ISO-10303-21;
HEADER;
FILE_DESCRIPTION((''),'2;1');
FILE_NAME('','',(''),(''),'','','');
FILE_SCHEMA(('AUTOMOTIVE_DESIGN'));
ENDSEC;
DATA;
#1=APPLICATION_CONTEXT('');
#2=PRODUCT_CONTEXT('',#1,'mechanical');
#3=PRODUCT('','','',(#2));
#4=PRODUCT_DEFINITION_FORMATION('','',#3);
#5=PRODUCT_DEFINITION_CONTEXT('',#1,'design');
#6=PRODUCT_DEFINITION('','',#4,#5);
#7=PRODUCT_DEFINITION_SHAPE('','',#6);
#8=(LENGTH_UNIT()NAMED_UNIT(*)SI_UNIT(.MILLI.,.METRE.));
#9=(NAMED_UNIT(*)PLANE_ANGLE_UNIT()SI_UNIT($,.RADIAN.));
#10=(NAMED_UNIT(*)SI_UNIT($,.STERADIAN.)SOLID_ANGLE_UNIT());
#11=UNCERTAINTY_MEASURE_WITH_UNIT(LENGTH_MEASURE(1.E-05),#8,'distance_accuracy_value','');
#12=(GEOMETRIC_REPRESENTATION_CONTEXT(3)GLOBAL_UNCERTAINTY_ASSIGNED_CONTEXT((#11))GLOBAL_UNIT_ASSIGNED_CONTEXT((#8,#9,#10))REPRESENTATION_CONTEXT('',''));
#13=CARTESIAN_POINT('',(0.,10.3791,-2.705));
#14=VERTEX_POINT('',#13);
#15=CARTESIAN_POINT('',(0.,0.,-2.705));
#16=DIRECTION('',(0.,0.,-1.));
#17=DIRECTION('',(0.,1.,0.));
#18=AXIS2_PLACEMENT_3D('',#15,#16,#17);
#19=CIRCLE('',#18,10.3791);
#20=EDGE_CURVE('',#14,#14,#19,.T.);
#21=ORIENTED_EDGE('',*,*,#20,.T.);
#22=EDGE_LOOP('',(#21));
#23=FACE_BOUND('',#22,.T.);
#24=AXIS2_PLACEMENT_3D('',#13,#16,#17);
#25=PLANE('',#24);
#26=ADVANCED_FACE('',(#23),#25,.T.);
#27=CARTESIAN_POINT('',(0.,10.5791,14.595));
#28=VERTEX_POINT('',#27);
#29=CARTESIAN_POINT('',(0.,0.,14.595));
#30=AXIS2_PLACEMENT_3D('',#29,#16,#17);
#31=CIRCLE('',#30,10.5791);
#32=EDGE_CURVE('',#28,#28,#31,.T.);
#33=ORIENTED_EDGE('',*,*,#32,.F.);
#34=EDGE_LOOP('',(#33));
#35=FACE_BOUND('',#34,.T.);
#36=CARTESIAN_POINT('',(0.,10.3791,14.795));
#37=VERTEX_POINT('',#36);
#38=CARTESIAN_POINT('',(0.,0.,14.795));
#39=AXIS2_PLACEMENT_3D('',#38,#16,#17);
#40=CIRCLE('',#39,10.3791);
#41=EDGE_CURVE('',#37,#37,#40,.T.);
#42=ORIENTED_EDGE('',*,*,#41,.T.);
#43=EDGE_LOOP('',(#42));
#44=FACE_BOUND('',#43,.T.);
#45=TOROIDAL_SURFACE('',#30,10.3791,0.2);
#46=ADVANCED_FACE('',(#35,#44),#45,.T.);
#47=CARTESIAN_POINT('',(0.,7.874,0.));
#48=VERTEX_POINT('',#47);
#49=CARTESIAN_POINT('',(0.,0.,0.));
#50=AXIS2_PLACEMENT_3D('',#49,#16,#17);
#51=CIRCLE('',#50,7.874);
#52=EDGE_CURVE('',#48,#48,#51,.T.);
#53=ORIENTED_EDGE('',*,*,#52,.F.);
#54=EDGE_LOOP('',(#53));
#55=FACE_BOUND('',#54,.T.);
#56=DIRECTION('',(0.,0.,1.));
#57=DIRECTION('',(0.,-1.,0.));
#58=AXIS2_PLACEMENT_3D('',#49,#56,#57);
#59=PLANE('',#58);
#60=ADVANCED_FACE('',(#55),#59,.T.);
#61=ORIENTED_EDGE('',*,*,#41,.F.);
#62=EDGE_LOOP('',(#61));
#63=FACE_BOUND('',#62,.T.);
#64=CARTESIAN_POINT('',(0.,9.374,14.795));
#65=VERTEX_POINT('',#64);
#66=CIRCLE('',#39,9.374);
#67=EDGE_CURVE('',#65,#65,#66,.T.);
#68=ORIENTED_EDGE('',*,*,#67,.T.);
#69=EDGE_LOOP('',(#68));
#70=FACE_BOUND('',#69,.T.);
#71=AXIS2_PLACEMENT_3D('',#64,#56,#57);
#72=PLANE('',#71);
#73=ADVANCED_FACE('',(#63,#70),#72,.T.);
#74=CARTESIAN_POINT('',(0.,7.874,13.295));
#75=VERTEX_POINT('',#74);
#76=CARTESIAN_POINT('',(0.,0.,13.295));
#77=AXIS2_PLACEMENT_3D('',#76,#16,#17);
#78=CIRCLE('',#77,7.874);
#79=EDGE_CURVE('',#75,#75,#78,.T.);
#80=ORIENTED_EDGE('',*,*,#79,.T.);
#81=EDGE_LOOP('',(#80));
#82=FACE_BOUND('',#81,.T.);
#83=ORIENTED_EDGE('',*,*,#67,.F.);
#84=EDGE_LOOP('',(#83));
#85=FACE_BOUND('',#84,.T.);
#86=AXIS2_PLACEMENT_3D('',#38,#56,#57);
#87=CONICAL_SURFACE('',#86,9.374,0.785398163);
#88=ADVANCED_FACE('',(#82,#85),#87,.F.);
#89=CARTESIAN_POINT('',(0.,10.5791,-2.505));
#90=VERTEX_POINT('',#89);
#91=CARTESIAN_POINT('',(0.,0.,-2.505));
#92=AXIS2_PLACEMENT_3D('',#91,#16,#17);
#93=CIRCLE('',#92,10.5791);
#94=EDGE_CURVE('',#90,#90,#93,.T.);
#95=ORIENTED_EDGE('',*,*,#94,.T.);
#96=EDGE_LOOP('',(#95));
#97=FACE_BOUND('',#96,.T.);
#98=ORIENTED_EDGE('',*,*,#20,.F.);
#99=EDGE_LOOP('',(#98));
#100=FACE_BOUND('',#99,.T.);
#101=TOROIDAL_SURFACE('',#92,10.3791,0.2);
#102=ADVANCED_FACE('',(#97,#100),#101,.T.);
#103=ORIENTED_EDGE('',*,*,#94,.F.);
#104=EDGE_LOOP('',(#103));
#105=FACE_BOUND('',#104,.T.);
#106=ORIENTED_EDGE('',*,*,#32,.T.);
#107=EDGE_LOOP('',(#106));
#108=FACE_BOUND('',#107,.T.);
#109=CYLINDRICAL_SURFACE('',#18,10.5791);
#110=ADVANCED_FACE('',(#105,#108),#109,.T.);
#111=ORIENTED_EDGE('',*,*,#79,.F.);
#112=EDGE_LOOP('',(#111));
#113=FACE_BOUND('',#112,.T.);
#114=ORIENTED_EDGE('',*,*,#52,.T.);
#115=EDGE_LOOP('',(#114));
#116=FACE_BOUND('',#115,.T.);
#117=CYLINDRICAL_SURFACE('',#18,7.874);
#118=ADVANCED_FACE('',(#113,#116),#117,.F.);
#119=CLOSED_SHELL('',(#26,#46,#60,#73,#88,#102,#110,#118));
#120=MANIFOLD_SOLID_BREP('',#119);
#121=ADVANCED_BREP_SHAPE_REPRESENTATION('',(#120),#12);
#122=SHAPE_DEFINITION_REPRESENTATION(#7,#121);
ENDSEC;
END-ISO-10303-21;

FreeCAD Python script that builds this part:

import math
import FreeCAD as App
import Part
import Sketcher
Q = App.Units.Quantity

doc = App.newDocument("Part")
body = doc.addObject("PartDesign::Body", "Body")

sketch1 = body.newObject("Sketcher::SketchObject", "Sketch")
sketch1.AttachmentSupport = (doc.getObject("YZ_Plane"), [""])
sketch1.MapMode = "FlatFace"
sketch1.addGeometry([
    Part.LineSegment(App.Vector(10.3791, 14.795, 0), App.Vector(9.374, 14.795, 0)),
    Part.LineSegment(App.Vector(9.374, 14.795, 0), App.Vector(7.874, 13.295, 0)),
    Part.LineSegment(App.Vector(7.874, 13.295, 0), App.Vector(7.874, 0, 0)),
    Part.LineSegment(App.Vector(7.874, 0, 0), App.Vector(0, 0, 0)),
    Part.LineSegment(App.Vector(0, 0, 0), App.Vector(0, -2.705, 0)),
    Part.LineSegment(App.Vector(0, -2.705, 0), App.Vector(10.3791, -2.705, 0)),
    Part.ArcOfCircle(Part.Circle(App.Vector(10.3791, -2.505, 0), App.Vector(0, 0, 1), 0.2), math.radians(-90), math.radians(0)),
    Part.LineSegment(App.Vector(10.5791, -2.505, 0), App.Vector(10.5791, 14.595, 0)),
    Part.ArcOfCircle(Part.Circle(App.Vector(10.3791, 14.595, 0), App.Vector(0, 0, 1), 0.2), math.radians(0), math.radians(90)),
], False)
sketch1.addConstraint([
    Sketcher.Constraint("Coincident", 0, 2, 1, 1),
    Sketcher.Constraint("Coincident", 1, 2, 2, 1),
    Sketcher.Constraint("Coincident", 2, 2, 3, 1),
    Sketcher.Constraint("Coincident", 3, 2, 4, 1),
    Sketcher.Constraint("Coincident", 4, 2, 5, 1),
    Sketcher.Constraint("Tangent", 5, 2, 6, 1),
    Sketcher.Constraint("Tangent", 6, 2, 7, 1),
    Sketcher.Constraint("Tangent", 7, 2, 8, 1),
    Sketcher.Constraint("Tangent", 8, 2, 0, 1),
    Sketcher.Constraint("Horizontal", 0),
    Sketcher.Constraint("Vertical", 2),
    Sketcher.Constraint("Horizontal", 3),
    Sketcher.Constraint("Vertical", 4),
    Sketcher.Constraint("Horizontal", 5),
    Sketcher.Constraint("Vertical", 7),
    Sketcher.Constraint("Coincident", 3, 2, -1, 1),
    Sketcher.Constraint("Equal", 6, 8),
    Sketcher.Constraint("Radius", 6, 0.2),
    Sketcher.Constraint("Angle", 1, Q("-135 deg")),
    Sketcher.Constraint("DistanceY", 7, 1, 7, 2, 17.1),
    Sketcher.Constraint("DistanceY", 4, 2, 1, 2, 16.0),
    Sketcher.Constraint("DistanceX", 3, 2, 3, 1, 7.874),
    Sketcher.Constraint("DistanceY", 2, 2, 2, 1, 13.295),
    Sketcher.Constraint("DistanceX", 0, 2, 0, 1, 1.0051),
])
revolution = body.newObject("PartDesign::Revolution", "Revolution")
revolution.Profile = sketch1
revolution.ReferenceAxis = (sketch1, ["V_Axis"])
revolution.Angle = 360

doc.recompute()
